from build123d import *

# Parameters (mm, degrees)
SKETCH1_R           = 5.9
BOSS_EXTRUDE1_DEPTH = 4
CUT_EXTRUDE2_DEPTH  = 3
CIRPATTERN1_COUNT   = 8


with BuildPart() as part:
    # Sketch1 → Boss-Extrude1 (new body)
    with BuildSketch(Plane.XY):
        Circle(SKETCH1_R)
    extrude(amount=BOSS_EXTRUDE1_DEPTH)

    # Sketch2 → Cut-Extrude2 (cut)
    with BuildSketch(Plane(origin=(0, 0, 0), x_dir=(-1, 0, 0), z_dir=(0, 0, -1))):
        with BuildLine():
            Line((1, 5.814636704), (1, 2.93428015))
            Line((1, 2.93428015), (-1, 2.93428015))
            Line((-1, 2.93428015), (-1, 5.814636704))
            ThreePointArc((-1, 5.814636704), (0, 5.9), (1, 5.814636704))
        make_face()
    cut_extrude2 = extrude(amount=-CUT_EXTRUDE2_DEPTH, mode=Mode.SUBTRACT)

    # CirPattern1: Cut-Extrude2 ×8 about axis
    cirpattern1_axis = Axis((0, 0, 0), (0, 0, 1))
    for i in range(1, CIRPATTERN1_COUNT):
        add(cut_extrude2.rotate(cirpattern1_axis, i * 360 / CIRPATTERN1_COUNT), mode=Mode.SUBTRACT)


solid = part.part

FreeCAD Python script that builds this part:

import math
import FreeCAD as App
import Part
import Sketcher
from FreeCAD import Vector

doc = App.newDocument("Part")
params = doc.addObject("Spreadsheet::Sheet", "Params")
for row, (alias, value) in enumerate([
    ("sketch1_diameter", "11.8 mm"),
    ("pad1_length", "4 mm"),
    ("sketch2_radius", "5.9 mm"),
    ("sketch2_width", "2 mm"),
    ("pocket1_length", "3 mm"),
], start=1):
    params.set(f"A{row}", alias)
    params.set(f"B{row}", "=" + value)
    params.setAlias(f"B{row}", alias)

body = doc.addObject("PartDesign::Body", "Body")

sketch1 = body.newObject("Sketcher::SketchObject", "Sketch")
sketch1.AttachmentSupport = (doc.getObject("XY_Plane"), [""])
sketch1.MapMode = "FlatFace"
sketch1.addGeometry(Part.Circle(Vector(0, 0, 0), Vector(0, 0, 1), 6), False)
sketch1.addConstraint([
    Sketcher.Constraint("Coincident", 0, 3, -1, 1),
    Sketcher.Constraint("Diameter", 0, 11.8),
])
sketch1.setExpression("Constraints[1]", "Params.sketch1_diameter")
pad1 = body.newObject("PartDesign::Pad", "Pad")
pad1.Profile = sketch1
pad1.setExpression("Length", "Params.pad1_length")

sketch2 = body.newObject("Sketcher::SketchObject", "Sketch001")
sketch2.AttachmentSupport = (doc.getObject("XY_Plane"), [""])
sketch2.MapMode = "FlatFace"
sketch2.addGeometry([
    Part.LineSegment(Vector(-1, 2.9, 0), Vector(-1, 5.8, 0)),
    Part.ArcOfCircle(Part.Circle(Vector(0, 0, 0), Vector(0, 0, 1), 5.9), math.radians(80.24), math.radians(99.76)),
    Part.LineSegment(Vector(1, 5.8, 0), Vector(1, 2.9, 0)),
    Part.LineSegment(Vector(1, 2.9, 0), Vector(-1, 2.9, 0)),
], False)
sketch2.addConstraint([
    Sketcher.Constraint("Coincident", 0, 2, 1, 2),
    Sketcher.Constraint("Coincident", 1, 1, 2, 1),
    Sketcher.Constraint("Coincident", 2, 2, 3, 1),
    Sketcher.Constraint("Coincident", 3, 2, 0, 1),
    Sketcher.Constraint("Vertical", 0),
    Sketcher.Constraint("Vertical", 2),
    Sketcher.Constraint("Horizontal", 3),
    Sketcher.Constraint("Coincident", 1, 3, -1, 1),
    Sketcher.Constraint("Horizontal", 0, 2, 1, 1),
    Sketcher.Constraint("Radius", 1, 5.9),
    Sketcher.Constraint("DistanceX", 3, 2, 3, 1, 2.0),
    Sketcher.Constraint("DistanceY", 0, 1, 0, 2, 2.880357),
])
sketch2.setExpression("Constraints[9]", "Params.sketch2_radius")
sketch2.setExpression("Constraints[10]", "Params.sketch2_width")
pocket1 = body.newObject("PartDesign::Pocket", "Pocket")
pocket1.Profile = sketch2
pocket1.setExpression("Length", "Params.pocket1_length")
pocket1.Reversed = True
doc.recompute()

polarpattern = body.newObject("PartDesign::PolarPattern", "PolarPattern")
polarpattern.Originals = [pocket1]
polarpattern.Axis = (doc.getObject("Z_Axis"), [""])
polarpattern.Angle = 360
polarpattern.Occurrences = 8
body.Tip = polarpattern

doc.recompute()
